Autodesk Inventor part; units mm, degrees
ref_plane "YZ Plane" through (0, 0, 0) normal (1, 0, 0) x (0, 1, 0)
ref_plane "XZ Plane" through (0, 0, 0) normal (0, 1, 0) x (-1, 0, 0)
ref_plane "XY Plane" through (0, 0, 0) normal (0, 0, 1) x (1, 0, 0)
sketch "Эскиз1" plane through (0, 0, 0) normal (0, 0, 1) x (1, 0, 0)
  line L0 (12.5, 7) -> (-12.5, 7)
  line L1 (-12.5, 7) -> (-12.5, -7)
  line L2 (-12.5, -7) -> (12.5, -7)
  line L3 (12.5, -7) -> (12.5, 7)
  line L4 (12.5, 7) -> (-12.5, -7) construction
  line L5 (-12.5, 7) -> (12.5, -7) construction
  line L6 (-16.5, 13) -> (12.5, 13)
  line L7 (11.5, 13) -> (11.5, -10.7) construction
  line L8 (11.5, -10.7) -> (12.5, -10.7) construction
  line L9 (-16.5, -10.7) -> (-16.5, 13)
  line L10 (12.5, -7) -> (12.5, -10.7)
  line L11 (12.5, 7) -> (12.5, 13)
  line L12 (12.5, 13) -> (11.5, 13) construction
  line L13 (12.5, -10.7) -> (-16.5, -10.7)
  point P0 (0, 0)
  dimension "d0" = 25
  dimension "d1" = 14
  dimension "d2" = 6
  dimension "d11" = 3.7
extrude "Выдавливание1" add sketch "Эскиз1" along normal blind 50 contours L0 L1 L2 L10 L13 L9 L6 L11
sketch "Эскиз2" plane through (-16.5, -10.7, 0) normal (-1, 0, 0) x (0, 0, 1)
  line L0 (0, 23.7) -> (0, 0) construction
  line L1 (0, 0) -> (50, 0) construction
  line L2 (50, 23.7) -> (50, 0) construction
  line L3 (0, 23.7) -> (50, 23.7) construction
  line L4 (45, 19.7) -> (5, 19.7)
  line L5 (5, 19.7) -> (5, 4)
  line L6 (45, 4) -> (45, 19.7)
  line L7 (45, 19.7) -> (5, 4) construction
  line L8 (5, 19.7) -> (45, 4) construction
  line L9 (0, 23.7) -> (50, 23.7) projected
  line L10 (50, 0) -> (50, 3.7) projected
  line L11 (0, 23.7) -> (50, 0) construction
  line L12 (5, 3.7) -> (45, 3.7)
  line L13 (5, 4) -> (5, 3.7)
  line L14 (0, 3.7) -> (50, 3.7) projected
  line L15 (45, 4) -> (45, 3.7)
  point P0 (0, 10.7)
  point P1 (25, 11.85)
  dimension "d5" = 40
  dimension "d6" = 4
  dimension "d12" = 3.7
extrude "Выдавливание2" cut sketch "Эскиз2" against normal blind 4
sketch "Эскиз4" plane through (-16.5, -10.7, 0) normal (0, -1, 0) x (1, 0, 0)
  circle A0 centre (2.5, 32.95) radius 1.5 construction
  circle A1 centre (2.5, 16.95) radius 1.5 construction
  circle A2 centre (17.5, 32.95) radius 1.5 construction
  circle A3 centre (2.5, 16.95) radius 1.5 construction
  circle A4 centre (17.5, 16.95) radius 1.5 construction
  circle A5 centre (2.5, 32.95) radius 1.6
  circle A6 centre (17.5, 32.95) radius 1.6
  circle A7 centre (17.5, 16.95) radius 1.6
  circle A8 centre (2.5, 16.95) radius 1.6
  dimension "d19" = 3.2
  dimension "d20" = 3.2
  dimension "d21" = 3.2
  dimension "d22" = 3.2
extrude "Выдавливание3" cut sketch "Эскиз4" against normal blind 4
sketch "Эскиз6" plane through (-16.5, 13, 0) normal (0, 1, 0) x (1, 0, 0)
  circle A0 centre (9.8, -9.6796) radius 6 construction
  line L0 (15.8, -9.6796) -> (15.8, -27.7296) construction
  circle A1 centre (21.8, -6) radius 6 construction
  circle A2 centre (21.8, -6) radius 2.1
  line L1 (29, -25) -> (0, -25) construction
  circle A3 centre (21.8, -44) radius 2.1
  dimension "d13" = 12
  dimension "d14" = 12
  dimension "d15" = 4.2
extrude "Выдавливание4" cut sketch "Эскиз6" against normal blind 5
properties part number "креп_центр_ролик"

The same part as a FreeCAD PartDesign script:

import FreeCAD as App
import Part
import Sketcher
from FreeCAD import Vector
Q = App.Units.Quantity


def add_polygon(sketch, points):
    """Adds a closed chain of lines whose ends are joined by coincident constraints."""
    first, n = sketch.GeometryCount, len(points)
    for a, b in zip(points, points[1:] + points[:1]):
        sketch.addGeometry(Part.LineSegment(App.Vector(*a, 0), App.Vector(*b, 0)), False)
    for i in range(n):
        sketch.addConstraint(Sketcher.Constraint("Coincident", first + i, 2, first + (i + 1) % n, 1))

doc = App.newDocument("Part")
params = doc.addObject("Spreadsheet::Sheet", "Params")
for row, (alias, value) in enumerate([
    ("sketch1_width", "25 mm"),
    ("sketch1_height", "6 mm"),
    ("sketch1_height2", "14 mm"),
    ("sketch1_height3", "3.7 mm"),
    ("sketch1_width2", "29 mm"),
    ("pad1_length", "50 mm"),
    ("sketch2_height", "40 mm"),
    ("sketch2_width", "16 mm"),
    ("pocket1_length", "4 mm"),
    ("sketch3_diameter", "3.2 mm"),
    ("pocket2_length", "4 mm"),
    ("sketch4_diameter", "4.2 mm"),
    ("pocket3_length", "5 mm"),
], start=1):
    params.set(f"A{row}", alias)
    params.set(f"B{row}", "=" + value)
    params.setAlias(f"B{row}", alias)

body = doc.addObject("PartDesign::Body", "Body")

# Sketch on XY plane
sketch1 = body.newObject("Sketcher::SketchObject", "Sketch")
sketch1.AttachmentSupport = (doc.getObject("XY_Plane"), [""])
sketch1.MapMode = "FlatFace"
add_polygon(sketch1, [(-12.5, 7), (12.5, 7), (12.5, 13), (-16.5, 13), (-16.5, -10.7), (12.5, -10.7), (12.5, -7), (-12.5, -7)])  # lines 0-7
sketch1.addConstraint([
    Sketcher.Constraint("Horizontal", 0),
    Sketcher.Constraint("Vertical", 1),
    Sketcher.Constraint("Horizontal", 2),
    Sketcher.Constraint("Vertical", 3),
    Sketcher.Constraint("Horizontal", 4),
    Sketcher.Constraint("Vertical", 5),
    Sketcher.Constraint("Horizontal", 6),
    Sketcher.Constraint("Vertical", 7),
    Sketcher.Constraint("Symmetric", 0, 2, 6, 2, -1, 1),
    Sketcher.Constraint("Vertical", 1, 2, 4, 2),
    Sketcher.Constraint("DistanceX", 0, 1, 0, 2, Q("25 mm")),
    Sketcher.Constraint("DistanceY", 1, 1, 1, 2, Q("6 mm")),
    Sketcher.Constraint("DistanceY", 7, 1, 7, 2, Q("14 mm")),
    Sketcher.Constraint("DistanceY", 5, 1, 5, 2, Q("3.7 mm")),
    Sketcher.Constraint("DistanceX", 2, 2, 2, 1, Q("29 mm")),
])
sketch1.setExpression("Constraints[18]", "Params.sketch1_width")
sketch1.setExpression("Constraints[19]", "Params.sketch1_height")
sketch1.setExpression("Constraints[20]", "Params.sketch1_height2")
sketch1.setExpression("Constraints[21]", "Params.sketch1_height3")
sketch1.setExpression("Constraints[22]", "Params.sketch1_width2")
pad1 = body.newObject("PartDesign::Pad", "Pad")
pad1.Profile = sketch1
pad1.setExpression("Length", "Params.pad1_length")

# Sketch on YZ plane
sketch2 = body.newObject("Sketcher::SketchObject", "Sketch001")
sketch2.AttachmentSupport = (doc.getObject("YZ_Plane"), [""])
sketch2.MapMode = "FlatFace"
sketch2.AttachmentOffset = App.Placement(Vector(0, 0, -16.5), App.Rotation())
add_polygon(sketch2, [(-7, 45), (9, 45), (9, 5), (-7, 5)])  # lines 0-3
sketch2.addConstraint([
    Sketcher.Constraint("Horizontal", 0),
    Sketcher.Constraint("Vertical", 1),
    Sketcher.Constraint("Horizontal", 2),
    Sketcher.Constraint("Vertical", 3),
    Sketcher.Constraint("DistanceY", 1, 2, 1, 1, Q("40 mm")),
    Sketcher.Constraint("DistanceX", 0, 1, 0, 2, Q("16 mm")),
    Sketcher.Constraint("DistanceX", -1, 1, 0, 2, Q("9 mm")),
    Sketcher.Constraint("DistanceY", -1, 1, 0, 2, Q("45 mm")),
])
sketch2.setExpression("Constraints[8]", "Params.sketch2_height")
sketch2.setExpression("Constraints[9]", "Params.sketch2_width")
pocket1 = body.newObject("PartDesign::Pocket", "Pocket")
pocket1.Profile = sketch2
pocket1.setExpression("Length", "Params.pocket1_length")
pocket1.Reversed = True

# Sketch on XZ plane
sketch3 = body.newObject("Sketcher::SketchObject", "Sketch002")
sketch3.AttachmentSupport = (doc.getObject("XZ_Plane"), [""])
sketch3.MapMode = "FlatFace"
sketch3.AttachmentOffset = App.Placement(Vector(0, 0, 10.7), App.Rotation())
sketch3.addGeometry([
    Part.Circle(Vector(-14, 33, 0), Vector(0, 0, 1), 1.6),
    Part.Circle(Vector(1, 33, 0), Vector(0, 0, 1), 1.6),
    Part.Circle(Vector(1, 16.9, 0), Vector(0, 0, 1), 1.6),
    Part.Circle(Vector(-14, 16.9, 0), Vector(0, 0, 1), 1.6),
], False)
sketch3.addConstraint([
    Sketcher.Constraint("Equal", 0, 1),
    Sketcher.Constraint("Equal", 1, 2),
    Sketcher.Constraint("Equal", 2, 3),
    Sketcher.Constraint("Horizontal", 0, 3, 1, 3),
    Sketcher.Constraint("Horizontal", 2, 3, 3, 3),
    Sketcher.Constraint("Vertical", 1, 3, 2, 3),
    Sketcher.Constraint("Vertical", 0, 3, 3, 3),
    Sketcher.Constraint("Diameter", 0, Q("3.2 mm")),
    Sketcher.Constraint("DistanceX", 0, 3, -1, 1, Q("14 mm")),
    Sketcher.Constraint("DistanceX", -1, 1, 1, 3, Q("1 mm")),
    Sketcher.Constraint("DistanceY", 2, 3, 1, 3, Q("16 mm")),
    Sketcher.Constraint("DistanceY", -1, 1, 0, 3, Q("32.95 mm")),
])
sketch3.setExpression("Constraints[7]", "Params.sketch3_diameter")
pocket2 = body.newObject("PartDesign::Pocket", "Pocket001")
pocket2.Profile = sketch3
pocket2.setExpression("Length", "Params.pocket2_length")

# Sketch on XZ plane
sketch4 = body.newObject("Sketcher::SketchObject", "Sketch003")
sketch4.AttachmentSupport = (doc.getObject("XZ_Plane"), [""])
sketch4.MapMode = "FlatFace"
sketch4.AttachmentOffset = App.Placement(Vector(0, 0, -13), App.Rotation())
sketch4.addGeometry([
    Part.Circle(Vector(5.3, 6, 0), Vector(0, 0, 1), 2.1),
    Part.Circle(Vector(5.3, 44, 0), Vector(0, 0, 1), 2.1),
], False)
sketch4.addConstraint([
    Sketcher.Constraint("Equal", 0, 1),
    Sketcher.Constraint("Vertical", 0, 3, 1, 3),
    Sketcher.Constraint("Diameter", 0, Q("4.2 mm")),
    Sketcher.Constraint("DistanceY", -1, 1, 0, 3, Q("6 mm")),
    Sketcher.Constraint("DistanceY", -1, 1, 1, 3, Q("44 mm")),
    Sketcher.Constraint("DistanceX", -1, 1, 0, 3, Q("5.3 mm")),
])
sketch4.setExpression("Constraints[2]", "Params.sketch4_diameter")
pocket3 = body.newObject("PartDesign::Pocket", "Pocket002")
pocket3.Profile = sketch4
pocket3.setExpression("Length", "Params.pocket3_length")
pocket3.Reversed = True

doc.recompute()
